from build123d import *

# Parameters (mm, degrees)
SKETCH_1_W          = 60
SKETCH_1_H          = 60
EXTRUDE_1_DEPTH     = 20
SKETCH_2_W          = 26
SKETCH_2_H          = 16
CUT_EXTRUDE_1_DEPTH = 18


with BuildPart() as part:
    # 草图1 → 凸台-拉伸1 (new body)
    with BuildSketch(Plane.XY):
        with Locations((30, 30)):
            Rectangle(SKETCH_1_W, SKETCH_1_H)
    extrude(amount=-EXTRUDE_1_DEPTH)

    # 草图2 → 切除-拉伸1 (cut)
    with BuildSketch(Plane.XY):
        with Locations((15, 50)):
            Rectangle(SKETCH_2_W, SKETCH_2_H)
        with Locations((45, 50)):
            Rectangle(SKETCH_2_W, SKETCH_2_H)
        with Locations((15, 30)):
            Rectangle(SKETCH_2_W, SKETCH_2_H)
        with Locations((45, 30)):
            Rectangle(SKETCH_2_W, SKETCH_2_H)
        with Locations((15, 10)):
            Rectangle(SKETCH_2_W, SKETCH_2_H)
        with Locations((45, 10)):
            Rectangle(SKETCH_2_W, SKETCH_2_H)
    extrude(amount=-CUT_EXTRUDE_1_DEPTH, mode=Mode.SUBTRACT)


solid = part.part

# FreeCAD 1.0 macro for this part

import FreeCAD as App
import Part
import Sketcher

V = App.Vector


def add_polygon(sketch, points):
    """Adds a closed chain of lines whose ends are joined by coincident constraints."""
    first, n = sketch.GeometryCount, len(points)
    for a, b in zip(points, points[1:] + points[:1]):
        sketch.addGeometry(Part.LineSegment(App.Vector(*a, 0), App.Vector(*b, 0)), False)
    for i in range(n):
        sketch.addConstraint(Sketcher.Constraint("Coincident", first + i, 2, first + (i + 1) % n, 1))

doc = App.newDocument("Part")
body = doc.addObject("PartDesign::Body", "Body")

sketch1 = body.newObject("Sketcher::SketchObject", "Sketch")
sketch1.AttachmentSupport = (doc.getObject("XY_Plane"), [""])
sketch1.MapMode = "FlatFace"
add_polygon(sketch1, [(0, 60), (0, 0), (60, 0), (60, 60)])
sketch1.addConstraint([
    Sketcher.Constraint("Vertical", 0),
    Sketcher.Constraint("Horizontal", 1),
    Sketcher.Constraint("Vertical", 2),
    Sketcher.Constraint("Horizontal", 3),
    Sketcher.Constraint("Coincident", 0, 2, -1, 1),
    Sketcher.Constraint("Equal", 3, 0),
    Sketcher.Constraint("DistanceX", 1, 1, 1, 2, 60.0),
])
pad1 = body.newObject("PartDesign::Pad", "Pad")
pad1.Profile = sketch1
pad1.Length = 20
pad1.Reversed = True

sketch2 = body.newObject("Sketcher::SketchObject", "Sketch001")
sketch2.AttachmentSupport = (doc.getObject("XY_Plane"), [""])
sketch2.MapMode = "FlatFace"
add_polygon(sketch2, [(2, 58), (2, 42), (28, 42), (28, 58)])
add_polygon(sketch2, [(32, 58), (32, 42), (58, 42), (58, 58)])
add_polygon(sketch2, [(2, 38), (2, 22), (28, 22), (28, 38)])
add_polygon(sketch2, [(32, 38), (32, 22), (58, 22), (58, 38)])
add_polygon(sketch2, [(2, 18), (2, 2), (28, 2), (28, 18)])
add_polygon(sketch2, [(32, 18), (32, 2), (58, 2), (58, 18)])
sketch2.addConstraint([
    Sketcher.Constraint("Vertical", 0),
    Sketcher.Constraint("Horizontal", 1),
    Sketcher.Constraint("Vertical", 2),
    Sketcher.Constraint("Horizontal", 3),
    Sketcher.Constraint("Vertical", 4),
    Sketcher.Constraint("Horizontal", 5),
    Sketcher.Constraint("Vertical", 6),
    Sketcher.Constraint("Horizontal", 7),
    Sketcher.Constraint("Vertical", 8),
    Sketcher.Constraint("Horizontal", 9),
    Sketcher.Constraint("Vertical", 10),
    Sketcher.Constraint("Horizontal", 11),
    Sketcher.Constraint("Vertical", 12),
    Sketcher.Constraint("Horizontal", 13),
    Sketcher.Constraint("Vertical", 14),
    Sketcher.Constraint("Horizontal", 15),
    Sketcher.Constraint("Vertical", 16),
    Sketcher.Constraint("Horizontal", 17),
    Sketcher.Constraint("Vertical", 18),
    Sketcher.Constraint("Horizontal", 19),
    Sketcher.Constraint("Vertical", 20),
    Sketcher.Constraint("Horizontal", 21),
    Sketcher.Constraint("Vertical", 22),
    Sketcher.Constraint("Horizontal", 23),
    Sketcher.Constraint("Horizontal", 1, 2, 4, 2),
    Sketcher.Constraint("Horizontal", 3, 2, 6, 2),
    Sketcher.Constraint("Horizontal", 9, 2, 12, 2),
    Sketcher.Constraint("Horizontal", 11, 2, 14, 2),
    Sketcher.Constraint("Horizontal", 17, 2, 20, 2),
    Sketcher.Constraint("Horizontal", 19, 2, 22, 2),
    Sketcher.Constraint("Vertical", 3, 2, 8, 2),
    Sketcher.Constraint("Vertical", 2, 2, 9, 2),
    Sketcher.Constraint("Vertical", 7, 2, 12, 2),
    Sketcher.Constraint("Vertical", 6, 2, 13, 2),
    Sketcher.Constraint("Vertical", 11, 2, 16, 2),
    Sketcher.Constraint("Vertical", 10, 2, 17, 2),
    Sketcher.Constraint("Vertical", 15, 2, 20, 2),
    Sketcher.Constraint("Vertical", 14, 2, 21, 2),
    Sketcher.Constraint("Equal", 3, 5),
    Sketcher.Constraint("Equal", 6, 8),
    Sketcher.Constraint("Equal", 14, 16),
    Sketcher.Constraint("DistanceX", 1, 1, 1, 2, 26.0),
    Sketcher.Constraint("DistanceY", 0, 2, 0, 1, 16.0),
    Sketcher.Constraint("DistanceX", -1, 1, 0, 2, 2.0),
    Sketcher.Constraint("DistanceY", -1, 1, 0, 2, 42.0),
    Sketcher.Constraint("DistanceX", -1, 1, 4, 2, 32.0),
    Sketcher.Constraint("DistanceY", -1, 1, 8, 2, 22.0),
    Sketcher.Constraint("DistanceY", -1, 1, 16, 2, 2.0),
])
pocket1 = body.newObject("PartDesign::Pocket", "Pocket")
pocket1.Profile = sketch2
pocket1.Length = 18

doc.recompute()
